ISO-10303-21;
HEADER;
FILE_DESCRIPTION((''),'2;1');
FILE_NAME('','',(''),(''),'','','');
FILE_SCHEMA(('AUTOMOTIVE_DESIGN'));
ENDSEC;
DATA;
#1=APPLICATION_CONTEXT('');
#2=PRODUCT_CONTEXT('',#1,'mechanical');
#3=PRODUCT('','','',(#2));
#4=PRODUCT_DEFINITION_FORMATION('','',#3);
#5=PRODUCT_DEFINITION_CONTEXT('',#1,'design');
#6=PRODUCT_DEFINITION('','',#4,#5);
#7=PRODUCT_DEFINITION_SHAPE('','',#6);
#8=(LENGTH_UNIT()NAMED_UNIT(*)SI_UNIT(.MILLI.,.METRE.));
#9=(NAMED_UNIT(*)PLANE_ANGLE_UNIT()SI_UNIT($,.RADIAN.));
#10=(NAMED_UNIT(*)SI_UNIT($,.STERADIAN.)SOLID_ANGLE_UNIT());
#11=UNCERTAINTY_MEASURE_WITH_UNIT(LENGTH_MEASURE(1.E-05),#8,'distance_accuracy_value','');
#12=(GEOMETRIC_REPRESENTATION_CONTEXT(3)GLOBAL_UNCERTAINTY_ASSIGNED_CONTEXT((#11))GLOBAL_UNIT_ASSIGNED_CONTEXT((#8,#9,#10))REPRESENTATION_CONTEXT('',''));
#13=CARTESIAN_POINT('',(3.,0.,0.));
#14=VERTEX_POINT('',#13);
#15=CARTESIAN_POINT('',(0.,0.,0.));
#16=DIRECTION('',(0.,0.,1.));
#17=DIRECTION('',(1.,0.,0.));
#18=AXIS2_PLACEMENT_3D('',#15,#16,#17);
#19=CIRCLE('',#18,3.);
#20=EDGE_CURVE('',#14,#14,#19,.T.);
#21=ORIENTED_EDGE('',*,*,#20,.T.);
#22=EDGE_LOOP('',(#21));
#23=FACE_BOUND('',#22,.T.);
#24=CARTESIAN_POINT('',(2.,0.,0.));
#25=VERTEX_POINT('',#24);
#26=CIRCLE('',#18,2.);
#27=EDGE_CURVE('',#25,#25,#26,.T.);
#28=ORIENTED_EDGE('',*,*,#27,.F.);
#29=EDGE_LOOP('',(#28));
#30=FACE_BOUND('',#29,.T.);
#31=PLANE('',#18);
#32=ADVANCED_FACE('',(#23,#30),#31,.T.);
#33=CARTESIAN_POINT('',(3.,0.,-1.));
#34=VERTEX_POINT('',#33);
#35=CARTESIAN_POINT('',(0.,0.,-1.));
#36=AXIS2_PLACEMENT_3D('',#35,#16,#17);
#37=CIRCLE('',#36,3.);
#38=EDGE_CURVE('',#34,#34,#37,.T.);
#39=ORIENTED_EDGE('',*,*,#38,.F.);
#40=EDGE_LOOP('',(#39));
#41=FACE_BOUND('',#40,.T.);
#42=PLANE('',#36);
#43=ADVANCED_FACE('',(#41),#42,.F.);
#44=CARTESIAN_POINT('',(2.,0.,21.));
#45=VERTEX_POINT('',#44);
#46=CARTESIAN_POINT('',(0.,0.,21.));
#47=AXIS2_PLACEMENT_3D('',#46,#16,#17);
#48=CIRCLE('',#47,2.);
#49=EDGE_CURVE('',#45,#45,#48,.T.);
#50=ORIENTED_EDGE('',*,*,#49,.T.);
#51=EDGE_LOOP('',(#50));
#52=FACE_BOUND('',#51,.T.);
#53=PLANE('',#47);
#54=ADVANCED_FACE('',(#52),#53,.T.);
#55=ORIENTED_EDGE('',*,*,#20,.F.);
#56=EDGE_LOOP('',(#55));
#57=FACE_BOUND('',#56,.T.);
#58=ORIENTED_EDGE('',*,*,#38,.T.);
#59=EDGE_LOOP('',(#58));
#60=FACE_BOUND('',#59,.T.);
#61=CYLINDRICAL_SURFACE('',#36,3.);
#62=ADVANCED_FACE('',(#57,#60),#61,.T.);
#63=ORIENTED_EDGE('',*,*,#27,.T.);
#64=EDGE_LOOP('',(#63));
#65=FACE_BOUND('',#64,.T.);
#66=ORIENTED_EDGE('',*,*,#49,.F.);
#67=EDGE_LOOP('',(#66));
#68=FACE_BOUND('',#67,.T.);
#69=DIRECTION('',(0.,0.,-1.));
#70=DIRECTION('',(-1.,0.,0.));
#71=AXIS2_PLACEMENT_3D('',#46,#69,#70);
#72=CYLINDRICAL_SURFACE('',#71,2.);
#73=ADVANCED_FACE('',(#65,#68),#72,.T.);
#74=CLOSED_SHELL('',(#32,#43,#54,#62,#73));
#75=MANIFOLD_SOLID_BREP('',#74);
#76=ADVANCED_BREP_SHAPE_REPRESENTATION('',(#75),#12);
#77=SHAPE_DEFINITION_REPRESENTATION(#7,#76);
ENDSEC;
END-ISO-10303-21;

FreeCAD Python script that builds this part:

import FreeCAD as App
import Part
import Sketcher

doc = App.newDocument("Part")
params = doc.addObject("Spreadsheet::Sheet", "Params")
for row, (alias, value) in enumerate([
    ("sketch1_diameter", "4 mm"),
    ("pad1_length", "21 mm"),
    ("sketch2_diameter", "6 mm"),
    ("pad2_length", "1 mm"),
], start=1):
    params.set(f"A{row}", alias)
    params.set(f"B{row}", "=" + value)
    params.setAlias(f"B{row}", alias)

body = doc.addObject("PartDesign::Body", "Body")

# Sketch on XY plane
sketch1 = doc.addObject("Sketcher::SketchObject", "Sketch")
body.addObject(sketch1)
sketch1.AttachmentSupport = (doc.XY_Plane, [""])
sketch1.MapMode = "FlatFace"
sketch1.addGeometry(Part.Circle(App.Vector(0, 0, 0), App.Vector(0, 0, 1), 2), False)
sketch1.addConstraint([
    Sketcher.Constraint("Coincident", 0, 3, -1, 1),
    Sketcher.Constraint("Diameter", 0, 4.0),
])
sketch1.setExpression("Constraints[1]", "Params.sketch1_diameter")
pad1 = doc.addObject("PartDesign::Pad", "Pad")
body.addObject(pad1)
pad1.Profile = sketch1
pad1.setExpression("Length", "Params.pad1_length")

# Sketch on XY plane
sketch2 = doc.addObject("Sketcher::SketchObject", "Sketch001")
body.addObject(sketch2)
sketch2.AttachmentSupport = (doc.XY_Plane, [""])
sketch2.MapMode = "FlatFace"
sketch2.addGeometry(Part.Circle(App.Vector(0, 0, 0), App.Vector(0, 0, 1), 3), False)
sketch2.addConstraint([
    Sketcher.Constraint("Coincident", 0, 3, -1, 1),
    Sketcher.Constraint("Diameter", 0, 6.0),
])
sketch2.setExpression("Constraints[1]", "Params.sketch2_diameter")
pad2 = doc.addObject("PartDesign::Pad", "Pad001")
body.addObject(pad2)
pad2.Profile = sketch2
pad2.setExpression("Length", "Params.pad2_length")
pad2.Reversed = True

doc.recompute()
